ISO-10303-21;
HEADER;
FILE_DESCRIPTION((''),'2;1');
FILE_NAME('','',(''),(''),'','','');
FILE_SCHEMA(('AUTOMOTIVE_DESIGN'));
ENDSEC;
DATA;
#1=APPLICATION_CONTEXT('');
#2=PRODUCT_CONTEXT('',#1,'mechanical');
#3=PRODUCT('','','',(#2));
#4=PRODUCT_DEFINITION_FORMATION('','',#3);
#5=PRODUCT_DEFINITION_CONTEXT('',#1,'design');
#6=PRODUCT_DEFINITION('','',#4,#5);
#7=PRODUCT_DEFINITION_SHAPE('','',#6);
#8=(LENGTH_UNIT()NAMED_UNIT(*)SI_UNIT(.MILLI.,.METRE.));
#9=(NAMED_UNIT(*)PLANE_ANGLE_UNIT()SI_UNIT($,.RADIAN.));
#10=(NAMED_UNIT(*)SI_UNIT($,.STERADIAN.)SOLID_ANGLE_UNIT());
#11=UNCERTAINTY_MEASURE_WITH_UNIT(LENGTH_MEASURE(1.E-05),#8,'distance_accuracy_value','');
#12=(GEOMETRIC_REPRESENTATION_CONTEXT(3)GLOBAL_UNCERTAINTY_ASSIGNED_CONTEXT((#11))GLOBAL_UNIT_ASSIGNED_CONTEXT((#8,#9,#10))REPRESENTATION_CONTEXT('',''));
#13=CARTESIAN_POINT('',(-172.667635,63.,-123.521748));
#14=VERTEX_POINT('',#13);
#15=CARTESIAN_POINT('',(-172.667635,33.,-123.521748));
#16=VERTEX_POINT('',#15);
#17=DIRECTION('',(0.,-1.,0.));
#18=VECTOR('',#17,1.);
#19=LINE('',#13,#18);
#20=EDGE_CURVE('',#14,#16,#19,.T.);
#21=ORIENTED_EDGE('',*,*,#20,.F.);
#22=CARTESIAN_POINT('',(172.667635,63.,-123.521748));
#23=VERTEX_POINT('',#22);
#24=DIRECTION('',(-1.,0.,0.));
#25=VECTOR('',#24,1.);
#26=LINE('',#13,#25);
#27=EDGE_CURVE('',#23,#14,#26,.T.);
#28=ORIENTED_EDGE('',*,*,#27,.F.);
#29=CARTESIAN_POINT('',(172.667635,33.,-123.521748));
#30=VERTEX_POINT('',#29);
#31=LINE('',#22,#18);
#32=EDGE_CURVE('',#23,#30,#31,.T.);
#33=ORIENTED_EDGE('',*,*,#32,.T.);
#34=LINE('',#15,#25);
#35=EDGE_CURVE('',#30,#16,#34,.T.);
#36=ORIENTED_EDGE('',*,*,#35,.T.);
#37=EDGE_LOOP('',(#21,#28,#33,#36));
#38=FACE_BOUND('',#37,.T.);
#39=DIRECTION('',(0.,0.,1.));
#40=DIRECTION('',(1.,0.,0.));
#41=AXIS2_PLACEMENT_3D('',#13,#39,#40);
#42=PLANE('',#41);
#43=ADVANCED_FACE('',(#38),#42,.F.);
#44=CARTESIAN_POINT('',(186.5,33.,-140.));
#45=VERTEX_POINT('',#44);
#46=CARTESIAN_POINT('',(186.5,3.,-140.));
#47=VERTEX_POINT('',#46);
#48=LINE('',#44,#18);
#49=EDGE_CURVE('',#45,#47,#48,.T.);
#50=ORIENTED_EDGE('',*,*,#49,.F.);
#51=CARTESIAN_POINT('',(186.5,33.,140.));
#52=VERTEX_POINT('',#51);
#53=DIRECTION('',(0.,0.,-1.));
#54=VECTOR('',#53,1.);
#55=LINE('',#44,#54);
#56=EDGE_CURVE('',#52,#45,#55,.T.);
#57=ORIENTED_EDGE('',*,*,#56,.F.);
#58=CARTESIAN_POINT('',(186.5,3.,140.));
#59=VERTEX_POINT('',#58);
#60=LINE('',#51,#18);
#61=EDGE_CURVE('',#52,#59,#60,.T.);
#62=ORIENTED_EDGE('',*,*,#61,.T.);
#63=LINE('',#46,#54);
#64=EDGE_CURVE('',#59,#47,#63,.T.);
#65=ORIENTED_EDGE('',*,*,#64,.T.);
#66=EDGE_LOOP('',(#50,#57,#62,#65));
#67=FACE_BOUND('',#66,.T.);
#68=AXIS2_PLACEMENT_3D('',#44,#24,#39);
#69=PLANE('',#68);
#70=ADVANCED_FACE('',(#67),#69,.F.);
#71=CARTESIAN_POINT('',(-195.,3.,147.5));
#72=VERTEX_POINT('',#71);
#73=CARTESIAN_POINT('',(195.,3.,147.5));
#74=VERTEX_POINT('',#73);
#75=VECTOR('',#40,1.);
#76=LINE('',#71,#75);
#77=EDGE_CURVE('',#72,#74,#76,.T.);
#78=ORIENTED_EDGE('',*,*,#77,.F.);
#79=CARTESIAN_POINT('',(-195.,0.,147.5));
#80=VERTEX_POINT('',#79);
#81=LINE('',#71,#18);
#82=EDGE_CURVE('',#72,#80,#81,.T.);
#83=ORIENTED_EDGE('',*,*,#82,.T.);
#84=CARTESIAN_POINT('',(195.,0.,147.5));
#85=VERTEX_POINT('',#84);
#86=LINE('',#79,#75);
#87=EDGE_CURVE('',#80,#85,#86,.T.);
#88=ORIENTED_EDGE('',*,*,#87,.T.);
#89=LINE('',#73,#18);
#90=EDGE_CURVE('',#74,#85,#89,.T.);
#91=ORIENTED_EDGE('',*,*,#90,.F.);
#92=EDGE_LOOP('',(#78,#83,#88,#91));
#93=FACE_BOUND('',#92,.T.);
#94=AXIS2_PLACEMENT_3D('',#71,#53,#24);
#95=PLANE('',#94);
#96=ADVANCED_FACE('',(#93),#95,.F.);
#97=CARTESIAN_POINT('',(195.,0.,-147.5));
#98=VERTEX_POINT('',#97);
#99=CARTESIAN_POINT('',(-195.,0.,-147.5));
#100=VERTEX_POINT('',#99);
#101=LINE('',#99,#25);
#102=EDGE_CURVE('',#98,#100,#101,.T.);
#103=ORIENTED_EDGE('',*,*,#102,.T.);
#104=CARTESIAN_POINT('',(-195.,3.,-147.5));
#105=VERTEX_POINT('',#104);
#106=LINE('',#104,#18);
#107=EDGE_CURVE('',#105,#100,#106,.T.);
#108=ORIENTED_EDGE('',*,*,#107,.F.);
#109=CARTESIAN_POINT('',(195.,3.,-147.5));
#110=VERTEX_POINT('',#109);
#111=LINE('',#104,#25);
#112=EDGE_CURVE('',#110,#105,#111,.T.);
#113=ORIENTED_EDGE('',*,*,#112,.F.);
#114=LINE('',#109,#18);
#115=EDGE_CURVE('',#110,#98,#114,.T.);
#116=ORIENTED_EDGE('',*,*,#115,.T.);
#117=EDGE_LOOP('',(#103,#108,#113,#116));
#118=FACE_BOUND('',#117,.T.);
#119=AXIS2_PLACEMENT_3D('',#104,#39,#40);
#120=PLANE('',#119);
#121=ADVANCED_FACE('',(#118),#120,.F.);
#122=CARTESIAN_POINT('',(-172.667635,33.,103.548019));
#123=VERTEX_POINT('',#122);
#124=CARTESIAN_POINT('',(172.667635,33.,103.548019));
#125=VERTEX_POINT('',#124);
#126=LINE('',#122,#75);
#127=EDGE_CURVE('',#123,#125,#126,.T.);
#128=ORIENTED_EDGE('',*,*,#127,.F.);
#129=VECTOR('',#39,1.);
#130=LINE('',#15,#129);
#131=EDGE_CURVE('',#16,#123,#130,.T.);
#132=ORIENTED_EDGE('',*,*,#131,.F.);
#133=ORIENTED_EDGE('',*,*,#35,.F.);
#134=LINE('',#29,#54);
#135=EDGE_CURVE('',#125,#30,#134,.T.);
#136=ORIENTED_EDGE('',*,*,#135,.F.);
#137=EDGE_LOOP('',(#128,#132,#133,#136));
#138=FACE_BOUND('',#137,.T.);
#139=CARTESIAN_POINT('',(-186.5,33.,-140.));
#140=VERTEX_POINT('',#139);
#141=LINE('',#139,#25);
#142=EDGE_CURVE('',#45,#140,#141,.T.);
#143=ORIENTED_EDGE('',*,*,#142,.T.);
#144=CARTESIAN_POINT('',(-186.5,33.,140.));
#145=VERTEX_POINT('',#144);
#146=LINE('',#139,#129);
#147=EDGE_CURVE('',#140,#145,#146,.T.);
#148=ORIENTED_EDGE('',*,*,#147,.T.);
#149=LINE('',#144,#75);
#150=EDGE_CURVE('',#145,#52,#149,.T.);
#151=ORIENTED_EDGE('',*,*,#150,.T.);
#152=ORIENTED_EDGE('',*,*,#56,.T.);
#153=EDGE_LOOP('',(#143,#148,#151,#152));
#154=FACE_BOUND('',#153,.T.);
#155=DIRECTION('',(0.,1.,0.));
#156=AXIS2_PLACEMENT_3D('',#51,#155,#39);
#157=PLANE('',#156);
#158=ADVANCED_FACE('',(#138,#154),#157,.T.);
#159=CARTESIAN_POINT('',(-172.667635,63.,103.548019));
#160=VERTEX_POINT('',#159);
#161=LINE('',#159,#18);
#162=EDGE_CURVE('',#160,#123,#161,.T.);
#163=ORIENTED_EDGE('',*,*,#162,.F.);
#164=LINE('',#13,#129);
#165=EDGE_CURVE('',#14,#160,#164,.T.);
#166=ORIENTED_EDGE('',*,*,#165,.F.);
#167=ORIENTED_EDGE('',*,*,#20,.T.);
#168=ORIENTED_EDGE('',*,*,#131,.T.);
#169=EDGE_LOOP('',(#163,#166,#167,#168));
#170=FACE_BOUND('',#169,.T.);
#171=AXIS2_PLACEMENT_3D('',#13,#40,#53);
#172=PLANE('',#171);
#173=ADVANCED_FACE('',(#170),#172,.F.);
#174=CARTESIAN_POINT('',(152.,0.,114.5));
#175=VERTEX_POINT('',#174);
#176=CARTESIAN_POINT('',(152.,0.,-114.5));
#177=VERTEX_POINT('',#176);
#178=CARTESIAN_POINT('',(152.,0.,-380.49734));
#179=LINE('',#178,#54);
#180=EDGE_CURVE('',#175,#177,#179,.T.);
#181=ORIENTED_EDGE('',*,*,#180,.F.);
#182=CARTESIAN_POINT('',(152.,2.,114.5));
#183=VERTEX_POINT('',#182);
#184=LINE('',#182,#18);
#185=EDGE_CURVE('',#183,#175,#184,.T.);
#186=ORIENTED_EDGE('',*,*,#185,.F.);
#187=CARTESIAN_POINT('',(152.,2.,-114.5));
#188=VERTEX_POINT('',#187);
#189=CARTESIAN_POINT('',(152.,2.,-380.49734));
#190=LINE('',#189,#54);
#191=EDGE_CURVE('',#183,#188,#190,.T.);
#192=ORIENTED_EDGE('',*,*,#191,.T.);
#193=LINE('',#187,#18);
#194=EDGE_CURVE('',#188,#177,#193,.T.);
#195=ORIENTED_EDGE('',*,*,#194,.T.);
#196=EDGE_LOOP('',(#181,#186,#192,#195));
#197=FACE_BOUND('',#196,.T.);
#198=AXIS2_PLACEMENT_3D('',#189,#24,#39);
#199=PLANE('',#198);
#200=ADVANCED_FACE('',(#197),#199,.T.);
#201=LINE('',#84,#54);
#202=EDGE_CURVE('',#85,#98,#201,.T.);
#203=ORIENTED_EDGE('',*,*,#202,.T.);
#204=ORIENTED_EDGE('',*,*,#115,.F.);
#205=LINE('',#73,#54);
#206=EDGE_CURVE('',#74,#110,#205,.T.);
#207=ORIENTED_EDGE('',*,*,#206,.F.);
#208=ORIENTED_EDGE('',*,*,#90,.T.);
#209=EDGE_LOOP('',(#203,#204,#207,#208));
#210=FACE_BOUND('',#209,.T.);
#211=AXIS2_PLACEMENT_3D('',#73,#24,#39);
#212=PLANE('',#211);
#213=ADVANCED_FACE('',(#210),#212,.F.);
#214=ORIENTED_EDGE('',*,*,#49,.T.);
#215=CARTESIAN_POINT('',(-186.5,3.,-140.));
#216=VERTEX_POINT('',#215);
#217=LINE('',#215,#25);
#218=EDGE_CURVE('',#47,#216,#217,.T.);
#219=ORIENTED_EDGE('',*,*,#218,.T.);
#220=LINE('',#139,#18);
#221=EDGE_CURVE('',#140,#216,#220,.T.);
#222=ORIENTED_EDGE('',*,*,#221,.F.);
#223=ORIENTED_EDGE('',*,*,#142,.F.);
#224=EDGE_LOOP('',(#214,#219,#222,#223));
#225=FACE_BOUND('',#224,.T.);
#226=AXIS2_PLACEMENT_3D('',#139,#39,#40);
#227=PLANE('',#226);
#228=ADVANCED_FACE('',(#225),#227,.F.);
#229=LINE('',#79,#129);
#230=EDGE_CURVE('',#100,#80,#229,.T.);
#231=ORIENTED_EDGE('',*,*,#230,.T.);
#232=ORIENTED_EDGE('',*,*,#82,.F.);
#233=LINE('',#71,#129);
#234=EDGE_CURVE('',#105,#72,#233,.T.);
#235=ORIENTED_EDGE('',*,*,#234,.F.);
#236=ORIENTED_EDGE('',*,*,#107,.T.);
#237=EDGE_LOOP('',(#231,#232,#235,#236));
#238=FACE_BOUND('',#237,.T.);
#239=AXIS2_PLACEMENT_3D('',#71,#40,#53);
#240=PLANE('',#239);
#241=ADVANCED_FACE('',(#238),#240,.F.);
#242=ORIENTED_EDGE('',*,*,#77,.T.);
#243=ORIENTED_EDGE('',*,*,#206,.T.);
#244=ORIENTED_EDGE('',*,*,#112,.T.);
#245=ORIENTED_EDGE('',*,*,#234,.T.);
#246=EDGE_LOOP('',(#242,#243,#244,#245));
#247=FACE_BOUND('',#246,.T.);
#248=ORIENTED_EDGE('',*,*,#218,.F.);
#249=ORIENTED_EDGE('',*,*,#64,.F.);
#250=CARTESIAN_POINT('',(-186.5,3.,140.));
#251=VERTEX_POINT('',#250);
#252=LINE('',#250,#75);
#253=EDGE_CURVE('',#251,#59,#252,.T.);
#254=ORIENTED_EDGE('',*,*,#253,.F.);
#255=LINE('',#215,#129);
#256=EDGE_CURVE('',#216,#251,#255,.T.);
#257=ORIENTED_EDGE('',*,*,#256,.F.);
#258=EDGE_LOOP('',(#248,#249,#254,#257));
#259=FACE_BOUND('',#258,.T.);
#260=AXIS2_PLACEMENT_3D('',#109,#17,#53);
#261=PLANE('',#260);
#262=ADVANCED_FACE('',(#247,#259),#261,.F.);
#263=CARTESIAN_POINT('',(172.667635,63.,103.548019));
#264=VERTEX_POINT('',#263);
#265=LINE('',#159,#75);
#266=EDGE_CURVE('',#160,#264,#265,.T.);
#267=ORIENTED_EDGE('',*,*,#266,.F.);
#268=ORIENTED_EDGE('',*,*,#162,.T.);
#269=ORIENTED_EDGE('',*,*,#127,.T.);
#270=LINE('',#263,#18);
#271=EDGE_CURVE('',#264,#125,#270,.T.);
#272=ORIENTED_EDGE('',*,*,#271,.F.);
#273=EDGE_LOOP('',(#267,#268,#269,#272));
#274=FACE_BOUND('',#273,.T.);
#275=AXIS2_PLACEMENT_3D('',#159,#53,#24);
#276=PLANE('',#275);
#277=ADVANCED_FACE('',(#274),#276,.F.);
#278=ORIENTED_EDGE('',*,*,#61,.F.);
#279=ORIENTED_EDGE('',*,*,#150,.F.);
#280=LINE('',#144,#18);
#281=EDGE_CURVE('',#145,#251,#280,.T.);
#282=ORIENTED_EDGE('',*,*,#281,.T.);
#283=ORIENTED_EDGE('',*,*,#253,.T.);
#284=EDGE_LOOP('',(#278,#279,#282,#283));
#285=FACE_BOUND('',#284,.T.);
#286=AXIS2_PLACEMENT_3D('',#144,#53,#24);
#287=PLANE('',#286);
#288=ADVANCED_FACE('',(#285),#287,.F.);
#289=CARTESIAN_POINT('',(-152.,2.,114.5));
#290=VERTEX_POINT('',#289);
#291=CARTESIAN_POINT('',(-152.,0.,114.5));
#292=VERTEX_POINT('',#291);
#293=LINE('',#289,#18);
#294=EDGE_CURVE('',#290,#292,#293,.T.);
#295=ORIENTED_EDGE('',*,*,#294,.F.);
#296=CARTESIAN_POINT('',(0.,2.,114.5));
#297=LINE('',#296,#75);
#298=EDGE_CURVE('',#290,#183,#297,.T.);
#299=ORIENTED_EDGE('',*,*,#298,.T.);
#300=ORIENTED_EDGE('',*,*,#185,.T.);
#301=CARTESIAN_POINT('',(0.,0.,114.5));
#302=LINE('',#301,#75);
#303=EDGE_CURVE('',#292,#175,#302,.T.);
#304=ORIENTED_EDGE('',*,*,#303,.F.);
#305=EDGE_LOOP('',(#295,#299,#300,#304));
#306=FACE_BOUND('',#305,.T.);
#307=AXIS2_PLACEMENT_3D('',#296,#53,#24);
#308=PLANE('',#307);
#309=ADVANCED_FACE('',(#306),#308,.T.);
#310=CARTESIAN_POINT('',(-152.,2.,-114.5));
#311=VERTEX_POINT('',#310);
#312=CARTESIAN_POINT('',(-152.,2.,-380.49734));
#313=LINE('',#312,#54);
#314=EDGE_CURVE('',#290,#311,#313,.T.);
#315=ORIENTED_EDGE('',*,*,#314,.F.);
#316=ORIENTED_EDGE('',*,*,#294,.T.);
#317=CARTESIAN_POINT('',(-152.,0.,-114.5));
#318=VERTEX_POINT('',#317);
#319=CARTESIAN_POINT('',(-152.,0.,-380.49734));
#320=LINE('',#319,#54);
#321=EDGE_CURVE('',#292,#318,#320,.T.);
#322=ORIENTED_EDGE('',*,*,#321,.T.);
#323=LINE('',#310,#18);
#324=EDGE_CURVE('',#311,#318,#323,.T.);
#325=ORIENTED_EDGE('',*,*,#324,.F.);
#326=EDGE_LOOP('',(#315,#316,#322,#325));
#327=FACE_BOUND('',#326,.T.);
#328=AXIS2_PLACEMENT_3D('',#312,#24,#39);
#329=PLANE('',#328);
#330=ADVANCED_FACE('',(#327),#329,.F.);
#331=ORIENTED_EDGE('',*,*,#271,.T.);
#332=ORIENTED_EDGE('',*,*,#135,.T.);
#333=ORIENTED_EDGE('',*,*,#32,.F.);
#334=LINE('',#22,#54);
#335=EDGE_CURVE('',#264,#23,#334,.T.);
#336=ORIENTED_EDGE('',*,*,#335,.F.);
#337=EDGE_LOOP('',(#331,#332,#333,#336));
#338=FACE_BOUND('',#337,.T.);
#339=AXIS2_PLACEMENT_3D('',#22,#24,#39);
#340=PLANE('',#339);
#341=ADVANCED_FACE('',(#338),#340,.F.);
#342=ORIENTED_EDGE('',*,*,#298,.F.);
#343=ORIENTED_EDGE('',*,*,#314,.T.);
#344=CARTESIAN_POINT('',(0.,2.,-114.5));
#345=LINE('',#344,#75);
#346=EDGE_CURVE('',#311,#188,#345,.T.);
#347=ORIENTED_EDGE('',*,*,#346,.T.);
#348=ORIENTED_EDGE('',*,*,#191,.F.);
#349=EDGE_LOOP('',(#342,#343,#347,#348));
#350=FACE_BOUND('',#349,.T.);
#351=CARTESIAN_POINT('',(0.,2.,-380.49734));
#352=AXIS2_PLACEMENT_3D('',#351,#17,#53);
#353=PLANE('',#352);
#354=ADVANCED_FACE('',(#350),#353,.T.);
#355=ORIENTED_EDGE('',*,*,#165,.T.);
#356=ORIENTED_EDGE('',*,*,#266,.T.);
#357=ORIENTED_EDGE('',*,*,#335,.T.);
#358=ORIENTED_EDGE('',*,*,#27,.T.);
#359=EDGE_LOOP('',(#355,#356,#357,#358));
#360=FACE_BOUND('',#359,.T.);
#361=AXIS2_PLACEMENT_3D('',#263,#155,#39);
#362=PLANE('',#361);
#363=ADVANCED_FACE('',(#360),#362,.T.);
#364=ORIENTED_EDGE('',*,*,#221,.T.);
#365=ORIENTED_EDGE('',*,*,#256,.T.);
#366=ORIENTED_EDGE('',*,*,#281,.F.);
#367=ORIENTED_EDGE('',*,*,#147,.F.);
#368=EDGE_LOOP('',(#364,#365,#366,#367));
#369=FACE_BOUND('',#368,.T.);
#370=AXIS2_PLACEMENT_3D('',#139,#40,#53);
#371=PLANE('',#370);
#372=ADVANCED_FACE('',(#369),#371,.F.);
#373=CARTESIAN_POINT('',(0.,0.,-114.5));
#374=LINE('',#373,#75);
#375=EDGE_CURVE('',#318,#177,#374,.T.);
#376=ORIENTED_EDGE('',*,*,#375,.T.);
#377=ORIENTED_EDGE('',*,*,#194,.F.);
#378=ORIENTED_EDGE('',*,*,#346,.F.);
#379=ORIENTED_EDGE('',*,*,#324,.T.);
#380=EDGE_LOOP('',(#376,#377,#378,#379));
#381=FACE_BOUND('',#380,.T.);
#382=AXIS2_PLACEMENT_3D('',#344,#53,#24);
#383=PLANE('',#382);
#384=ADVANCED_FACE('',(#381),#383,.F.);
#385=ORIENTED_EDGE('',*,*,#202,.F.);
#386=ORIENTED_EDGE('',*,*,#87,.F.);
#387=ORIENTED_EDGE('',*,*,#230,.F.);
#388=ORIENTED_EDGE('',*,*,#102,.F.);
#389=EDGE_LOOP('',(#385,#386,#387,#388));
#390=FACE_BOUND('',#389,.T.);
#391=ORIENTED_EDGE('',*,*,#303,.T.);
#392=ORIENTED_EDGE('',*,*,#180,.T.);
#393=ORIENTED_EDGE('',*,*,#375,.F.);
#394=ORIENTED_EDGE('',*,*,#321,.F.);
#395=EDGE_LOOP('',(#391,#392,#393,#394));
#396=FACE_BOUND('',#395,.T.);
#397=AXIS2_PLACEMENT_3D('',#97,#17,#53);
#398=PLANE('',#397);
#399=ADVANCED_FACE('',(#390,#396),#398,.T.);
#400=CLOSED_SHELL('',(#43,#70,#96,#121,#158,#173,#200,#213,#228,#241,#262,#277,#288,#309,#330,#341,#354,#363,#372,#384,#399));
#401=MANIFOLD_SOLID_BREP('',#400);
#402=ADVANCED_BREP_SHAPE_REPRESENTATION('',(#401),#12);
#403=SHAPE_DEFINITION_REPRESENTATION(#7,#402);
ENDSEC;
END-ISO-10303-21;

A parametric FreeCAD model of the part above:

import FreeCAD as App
import Part
import Sketcher

V = App.Vector


def add_polygon(sketch, points):
    """Adds a closed chain of lines whose ends are joined by coincident constraints."""
    first, n = sketch.GeometryCount, len(points)
    for a, b in zip(points, points[1:] + points[:1]):
        sketch.addGeometry(Part.LineSegment(App.Vector(*a, 0), App.Vector(*b, 0)), False)
    for i in range(n):
        sketch.addConstraint(Sketcher.Constraint("Coincident", first + i, 2, first + (i + 1) % n, 1))

doc = App.newDocument("Part")
body = doc.addObject("PartDesign::Body", "Body")

# Sketch on XZ plane
sketch1 = body.newObject("Sketcher::SketchObject", "Sketch")
sketch1.AttachmentSupport = (doc.getObject("XZ_Plane"), [""])
sketch1.MapMode = "FlatFace"
add_polygon(sketch1, [(-195, -148), (-195, 148), (195, 148), (195, -148)])  # lines 0-3
sketch1.addConstraint([
    Sketcher.Constraint("Vertical", 0),
    Sketcher.Constraint("Horizontal", 1),
    Sketcher.Constraint("Vertical", 2),
    Sketcher.Constraint("Horizontal", 3),
    Sketcher.Constraint("Symmetric", 0, 2, 2, 2, -1, 1),
    Sketcher.Constraint("DistanceX", 1, 1, 1, 2, 390.0),
    Sketcher.Constraint("DistanceY", 0, 1, 0, 2, 295.0),
])
pad1 = body.newObject("PartDesign::Pad", "Pad")
pad1.Profile = sketch1
pad1.Length = 3
pad1.Reversed = True

# Sketch on XZ plane
sketch2 = body.newObject("Sketcher::SketchObject", "Sketch001")
sketch2.AttachmentSupport = (doc.getObject("XZ_Plane"), [""])
sketch2.MapMode = "FlatFace"
sketch2.AttachmentOffset = App.Placement(V(0, 0, -3), App.Rotation())
add_polygon(sketch2, [(-186, -140), (-186, 140), (186, 140), (186, -140)])  # lines 0-3
sketch2.addConstraint([
    Sketcher.Constraint("Vertical", 0),
    Sketcher.Constraint("Horizontal", 1),
    Sketcher.Constraint("Vertical", 2),
    Sketcher.Constraint("Horizontal", 3),
    Sketcher.Constraint("Symmetric", 0, 2, 2, 2, -1, 1),
    Sketcher.Constraint("DistanceX", 1, 1, 1, 2, 373.0),
    Sketcher.Constraint("DistanceY", 0, 1, 0, 2, 280.0),
])
pad2 = body.newObject("PartDesign::Pad", "Pad001")
pad2.Profile = sketch2
pad2.Length = 30
pad2.Reversed = True

# Sketch on XZ plane
sketch3 = body.newObject("Sketcher::SketchObject", "Sketch002")
sketch3.AttachmentSupport = (doc.getObject("XZ_Plane"), [""])
sketch3.MapMode = "FlatFace"
sketch3.AttachmentOffset = App.Placement(V(0, 0, -33), App.Rotation())
add_polygon(sketch3, [(-173, -124), (-173, 104), (173, 104), (173, -124)])  # lines 0-3
sketch3.addConstraint([
    Sketcher.Constraint("Vertical", 0),
    Sketcher.Constraint("Horizontal", 1),
    Sketcher.Constraint("Vertical", 2),
    Sketcher.Constraint("Horizontal", 3),
    Sketcher.Constraint("DistanceX", 1, 1, 1, 2, 345.33527),
    Sketcher.Constraint("DistanceY", 0, 1, 0, 2, 227.069767),
    Sketcher.Constraint("DistanceY", -1, 1, 0, 2, 103.548019),
    Sketcher.Constraint("DistanceX", 0, 2, -1, 1, 172.667635),
])
pad3 = body.newObject("PartDesign::Pad", "Pad002")
pad3.Profile = sketch3
pad3.Length = 30
pad3.Reversed = True

# Sketch on XZ plane
sketch4 = body.newObject("Sketcher::SketchObject", "Sketch003")
sketch4.AttachmentSupport = (doc.getObject("XZ_Plane"), [""])
sketch4.MapMode = "FlatFace"
add_polygon(sketch4, [(-152, 114), (-152, -114), (152, -114), (152, 114)])  # lines 0-3
sketch4.addConstraint([
    Sketcher.Constraint("Vertical", 0),
    Sketcher.Constraint("Horizontal", 1),
    Sketcher.Constraint("Vertical", 2),
    Sketcher.Constraint("Horizontal", 3),
    Sketcher.Constraint("Symmetric", 0, 2, 2, 2, -1, 1),
    Sketcher.Constraint("DistanceX", 1, 1, 1, 2, 304.0),
    Sketcher.Constraint("DistanceY", 0, 2, 0, 1, 229.0),
])
pocket1 = body.newObject("PartDesign::Pocket", "Pocket")
pocket1.Profile = sketch4
pocket1.Length = 2

doc.recompute()
